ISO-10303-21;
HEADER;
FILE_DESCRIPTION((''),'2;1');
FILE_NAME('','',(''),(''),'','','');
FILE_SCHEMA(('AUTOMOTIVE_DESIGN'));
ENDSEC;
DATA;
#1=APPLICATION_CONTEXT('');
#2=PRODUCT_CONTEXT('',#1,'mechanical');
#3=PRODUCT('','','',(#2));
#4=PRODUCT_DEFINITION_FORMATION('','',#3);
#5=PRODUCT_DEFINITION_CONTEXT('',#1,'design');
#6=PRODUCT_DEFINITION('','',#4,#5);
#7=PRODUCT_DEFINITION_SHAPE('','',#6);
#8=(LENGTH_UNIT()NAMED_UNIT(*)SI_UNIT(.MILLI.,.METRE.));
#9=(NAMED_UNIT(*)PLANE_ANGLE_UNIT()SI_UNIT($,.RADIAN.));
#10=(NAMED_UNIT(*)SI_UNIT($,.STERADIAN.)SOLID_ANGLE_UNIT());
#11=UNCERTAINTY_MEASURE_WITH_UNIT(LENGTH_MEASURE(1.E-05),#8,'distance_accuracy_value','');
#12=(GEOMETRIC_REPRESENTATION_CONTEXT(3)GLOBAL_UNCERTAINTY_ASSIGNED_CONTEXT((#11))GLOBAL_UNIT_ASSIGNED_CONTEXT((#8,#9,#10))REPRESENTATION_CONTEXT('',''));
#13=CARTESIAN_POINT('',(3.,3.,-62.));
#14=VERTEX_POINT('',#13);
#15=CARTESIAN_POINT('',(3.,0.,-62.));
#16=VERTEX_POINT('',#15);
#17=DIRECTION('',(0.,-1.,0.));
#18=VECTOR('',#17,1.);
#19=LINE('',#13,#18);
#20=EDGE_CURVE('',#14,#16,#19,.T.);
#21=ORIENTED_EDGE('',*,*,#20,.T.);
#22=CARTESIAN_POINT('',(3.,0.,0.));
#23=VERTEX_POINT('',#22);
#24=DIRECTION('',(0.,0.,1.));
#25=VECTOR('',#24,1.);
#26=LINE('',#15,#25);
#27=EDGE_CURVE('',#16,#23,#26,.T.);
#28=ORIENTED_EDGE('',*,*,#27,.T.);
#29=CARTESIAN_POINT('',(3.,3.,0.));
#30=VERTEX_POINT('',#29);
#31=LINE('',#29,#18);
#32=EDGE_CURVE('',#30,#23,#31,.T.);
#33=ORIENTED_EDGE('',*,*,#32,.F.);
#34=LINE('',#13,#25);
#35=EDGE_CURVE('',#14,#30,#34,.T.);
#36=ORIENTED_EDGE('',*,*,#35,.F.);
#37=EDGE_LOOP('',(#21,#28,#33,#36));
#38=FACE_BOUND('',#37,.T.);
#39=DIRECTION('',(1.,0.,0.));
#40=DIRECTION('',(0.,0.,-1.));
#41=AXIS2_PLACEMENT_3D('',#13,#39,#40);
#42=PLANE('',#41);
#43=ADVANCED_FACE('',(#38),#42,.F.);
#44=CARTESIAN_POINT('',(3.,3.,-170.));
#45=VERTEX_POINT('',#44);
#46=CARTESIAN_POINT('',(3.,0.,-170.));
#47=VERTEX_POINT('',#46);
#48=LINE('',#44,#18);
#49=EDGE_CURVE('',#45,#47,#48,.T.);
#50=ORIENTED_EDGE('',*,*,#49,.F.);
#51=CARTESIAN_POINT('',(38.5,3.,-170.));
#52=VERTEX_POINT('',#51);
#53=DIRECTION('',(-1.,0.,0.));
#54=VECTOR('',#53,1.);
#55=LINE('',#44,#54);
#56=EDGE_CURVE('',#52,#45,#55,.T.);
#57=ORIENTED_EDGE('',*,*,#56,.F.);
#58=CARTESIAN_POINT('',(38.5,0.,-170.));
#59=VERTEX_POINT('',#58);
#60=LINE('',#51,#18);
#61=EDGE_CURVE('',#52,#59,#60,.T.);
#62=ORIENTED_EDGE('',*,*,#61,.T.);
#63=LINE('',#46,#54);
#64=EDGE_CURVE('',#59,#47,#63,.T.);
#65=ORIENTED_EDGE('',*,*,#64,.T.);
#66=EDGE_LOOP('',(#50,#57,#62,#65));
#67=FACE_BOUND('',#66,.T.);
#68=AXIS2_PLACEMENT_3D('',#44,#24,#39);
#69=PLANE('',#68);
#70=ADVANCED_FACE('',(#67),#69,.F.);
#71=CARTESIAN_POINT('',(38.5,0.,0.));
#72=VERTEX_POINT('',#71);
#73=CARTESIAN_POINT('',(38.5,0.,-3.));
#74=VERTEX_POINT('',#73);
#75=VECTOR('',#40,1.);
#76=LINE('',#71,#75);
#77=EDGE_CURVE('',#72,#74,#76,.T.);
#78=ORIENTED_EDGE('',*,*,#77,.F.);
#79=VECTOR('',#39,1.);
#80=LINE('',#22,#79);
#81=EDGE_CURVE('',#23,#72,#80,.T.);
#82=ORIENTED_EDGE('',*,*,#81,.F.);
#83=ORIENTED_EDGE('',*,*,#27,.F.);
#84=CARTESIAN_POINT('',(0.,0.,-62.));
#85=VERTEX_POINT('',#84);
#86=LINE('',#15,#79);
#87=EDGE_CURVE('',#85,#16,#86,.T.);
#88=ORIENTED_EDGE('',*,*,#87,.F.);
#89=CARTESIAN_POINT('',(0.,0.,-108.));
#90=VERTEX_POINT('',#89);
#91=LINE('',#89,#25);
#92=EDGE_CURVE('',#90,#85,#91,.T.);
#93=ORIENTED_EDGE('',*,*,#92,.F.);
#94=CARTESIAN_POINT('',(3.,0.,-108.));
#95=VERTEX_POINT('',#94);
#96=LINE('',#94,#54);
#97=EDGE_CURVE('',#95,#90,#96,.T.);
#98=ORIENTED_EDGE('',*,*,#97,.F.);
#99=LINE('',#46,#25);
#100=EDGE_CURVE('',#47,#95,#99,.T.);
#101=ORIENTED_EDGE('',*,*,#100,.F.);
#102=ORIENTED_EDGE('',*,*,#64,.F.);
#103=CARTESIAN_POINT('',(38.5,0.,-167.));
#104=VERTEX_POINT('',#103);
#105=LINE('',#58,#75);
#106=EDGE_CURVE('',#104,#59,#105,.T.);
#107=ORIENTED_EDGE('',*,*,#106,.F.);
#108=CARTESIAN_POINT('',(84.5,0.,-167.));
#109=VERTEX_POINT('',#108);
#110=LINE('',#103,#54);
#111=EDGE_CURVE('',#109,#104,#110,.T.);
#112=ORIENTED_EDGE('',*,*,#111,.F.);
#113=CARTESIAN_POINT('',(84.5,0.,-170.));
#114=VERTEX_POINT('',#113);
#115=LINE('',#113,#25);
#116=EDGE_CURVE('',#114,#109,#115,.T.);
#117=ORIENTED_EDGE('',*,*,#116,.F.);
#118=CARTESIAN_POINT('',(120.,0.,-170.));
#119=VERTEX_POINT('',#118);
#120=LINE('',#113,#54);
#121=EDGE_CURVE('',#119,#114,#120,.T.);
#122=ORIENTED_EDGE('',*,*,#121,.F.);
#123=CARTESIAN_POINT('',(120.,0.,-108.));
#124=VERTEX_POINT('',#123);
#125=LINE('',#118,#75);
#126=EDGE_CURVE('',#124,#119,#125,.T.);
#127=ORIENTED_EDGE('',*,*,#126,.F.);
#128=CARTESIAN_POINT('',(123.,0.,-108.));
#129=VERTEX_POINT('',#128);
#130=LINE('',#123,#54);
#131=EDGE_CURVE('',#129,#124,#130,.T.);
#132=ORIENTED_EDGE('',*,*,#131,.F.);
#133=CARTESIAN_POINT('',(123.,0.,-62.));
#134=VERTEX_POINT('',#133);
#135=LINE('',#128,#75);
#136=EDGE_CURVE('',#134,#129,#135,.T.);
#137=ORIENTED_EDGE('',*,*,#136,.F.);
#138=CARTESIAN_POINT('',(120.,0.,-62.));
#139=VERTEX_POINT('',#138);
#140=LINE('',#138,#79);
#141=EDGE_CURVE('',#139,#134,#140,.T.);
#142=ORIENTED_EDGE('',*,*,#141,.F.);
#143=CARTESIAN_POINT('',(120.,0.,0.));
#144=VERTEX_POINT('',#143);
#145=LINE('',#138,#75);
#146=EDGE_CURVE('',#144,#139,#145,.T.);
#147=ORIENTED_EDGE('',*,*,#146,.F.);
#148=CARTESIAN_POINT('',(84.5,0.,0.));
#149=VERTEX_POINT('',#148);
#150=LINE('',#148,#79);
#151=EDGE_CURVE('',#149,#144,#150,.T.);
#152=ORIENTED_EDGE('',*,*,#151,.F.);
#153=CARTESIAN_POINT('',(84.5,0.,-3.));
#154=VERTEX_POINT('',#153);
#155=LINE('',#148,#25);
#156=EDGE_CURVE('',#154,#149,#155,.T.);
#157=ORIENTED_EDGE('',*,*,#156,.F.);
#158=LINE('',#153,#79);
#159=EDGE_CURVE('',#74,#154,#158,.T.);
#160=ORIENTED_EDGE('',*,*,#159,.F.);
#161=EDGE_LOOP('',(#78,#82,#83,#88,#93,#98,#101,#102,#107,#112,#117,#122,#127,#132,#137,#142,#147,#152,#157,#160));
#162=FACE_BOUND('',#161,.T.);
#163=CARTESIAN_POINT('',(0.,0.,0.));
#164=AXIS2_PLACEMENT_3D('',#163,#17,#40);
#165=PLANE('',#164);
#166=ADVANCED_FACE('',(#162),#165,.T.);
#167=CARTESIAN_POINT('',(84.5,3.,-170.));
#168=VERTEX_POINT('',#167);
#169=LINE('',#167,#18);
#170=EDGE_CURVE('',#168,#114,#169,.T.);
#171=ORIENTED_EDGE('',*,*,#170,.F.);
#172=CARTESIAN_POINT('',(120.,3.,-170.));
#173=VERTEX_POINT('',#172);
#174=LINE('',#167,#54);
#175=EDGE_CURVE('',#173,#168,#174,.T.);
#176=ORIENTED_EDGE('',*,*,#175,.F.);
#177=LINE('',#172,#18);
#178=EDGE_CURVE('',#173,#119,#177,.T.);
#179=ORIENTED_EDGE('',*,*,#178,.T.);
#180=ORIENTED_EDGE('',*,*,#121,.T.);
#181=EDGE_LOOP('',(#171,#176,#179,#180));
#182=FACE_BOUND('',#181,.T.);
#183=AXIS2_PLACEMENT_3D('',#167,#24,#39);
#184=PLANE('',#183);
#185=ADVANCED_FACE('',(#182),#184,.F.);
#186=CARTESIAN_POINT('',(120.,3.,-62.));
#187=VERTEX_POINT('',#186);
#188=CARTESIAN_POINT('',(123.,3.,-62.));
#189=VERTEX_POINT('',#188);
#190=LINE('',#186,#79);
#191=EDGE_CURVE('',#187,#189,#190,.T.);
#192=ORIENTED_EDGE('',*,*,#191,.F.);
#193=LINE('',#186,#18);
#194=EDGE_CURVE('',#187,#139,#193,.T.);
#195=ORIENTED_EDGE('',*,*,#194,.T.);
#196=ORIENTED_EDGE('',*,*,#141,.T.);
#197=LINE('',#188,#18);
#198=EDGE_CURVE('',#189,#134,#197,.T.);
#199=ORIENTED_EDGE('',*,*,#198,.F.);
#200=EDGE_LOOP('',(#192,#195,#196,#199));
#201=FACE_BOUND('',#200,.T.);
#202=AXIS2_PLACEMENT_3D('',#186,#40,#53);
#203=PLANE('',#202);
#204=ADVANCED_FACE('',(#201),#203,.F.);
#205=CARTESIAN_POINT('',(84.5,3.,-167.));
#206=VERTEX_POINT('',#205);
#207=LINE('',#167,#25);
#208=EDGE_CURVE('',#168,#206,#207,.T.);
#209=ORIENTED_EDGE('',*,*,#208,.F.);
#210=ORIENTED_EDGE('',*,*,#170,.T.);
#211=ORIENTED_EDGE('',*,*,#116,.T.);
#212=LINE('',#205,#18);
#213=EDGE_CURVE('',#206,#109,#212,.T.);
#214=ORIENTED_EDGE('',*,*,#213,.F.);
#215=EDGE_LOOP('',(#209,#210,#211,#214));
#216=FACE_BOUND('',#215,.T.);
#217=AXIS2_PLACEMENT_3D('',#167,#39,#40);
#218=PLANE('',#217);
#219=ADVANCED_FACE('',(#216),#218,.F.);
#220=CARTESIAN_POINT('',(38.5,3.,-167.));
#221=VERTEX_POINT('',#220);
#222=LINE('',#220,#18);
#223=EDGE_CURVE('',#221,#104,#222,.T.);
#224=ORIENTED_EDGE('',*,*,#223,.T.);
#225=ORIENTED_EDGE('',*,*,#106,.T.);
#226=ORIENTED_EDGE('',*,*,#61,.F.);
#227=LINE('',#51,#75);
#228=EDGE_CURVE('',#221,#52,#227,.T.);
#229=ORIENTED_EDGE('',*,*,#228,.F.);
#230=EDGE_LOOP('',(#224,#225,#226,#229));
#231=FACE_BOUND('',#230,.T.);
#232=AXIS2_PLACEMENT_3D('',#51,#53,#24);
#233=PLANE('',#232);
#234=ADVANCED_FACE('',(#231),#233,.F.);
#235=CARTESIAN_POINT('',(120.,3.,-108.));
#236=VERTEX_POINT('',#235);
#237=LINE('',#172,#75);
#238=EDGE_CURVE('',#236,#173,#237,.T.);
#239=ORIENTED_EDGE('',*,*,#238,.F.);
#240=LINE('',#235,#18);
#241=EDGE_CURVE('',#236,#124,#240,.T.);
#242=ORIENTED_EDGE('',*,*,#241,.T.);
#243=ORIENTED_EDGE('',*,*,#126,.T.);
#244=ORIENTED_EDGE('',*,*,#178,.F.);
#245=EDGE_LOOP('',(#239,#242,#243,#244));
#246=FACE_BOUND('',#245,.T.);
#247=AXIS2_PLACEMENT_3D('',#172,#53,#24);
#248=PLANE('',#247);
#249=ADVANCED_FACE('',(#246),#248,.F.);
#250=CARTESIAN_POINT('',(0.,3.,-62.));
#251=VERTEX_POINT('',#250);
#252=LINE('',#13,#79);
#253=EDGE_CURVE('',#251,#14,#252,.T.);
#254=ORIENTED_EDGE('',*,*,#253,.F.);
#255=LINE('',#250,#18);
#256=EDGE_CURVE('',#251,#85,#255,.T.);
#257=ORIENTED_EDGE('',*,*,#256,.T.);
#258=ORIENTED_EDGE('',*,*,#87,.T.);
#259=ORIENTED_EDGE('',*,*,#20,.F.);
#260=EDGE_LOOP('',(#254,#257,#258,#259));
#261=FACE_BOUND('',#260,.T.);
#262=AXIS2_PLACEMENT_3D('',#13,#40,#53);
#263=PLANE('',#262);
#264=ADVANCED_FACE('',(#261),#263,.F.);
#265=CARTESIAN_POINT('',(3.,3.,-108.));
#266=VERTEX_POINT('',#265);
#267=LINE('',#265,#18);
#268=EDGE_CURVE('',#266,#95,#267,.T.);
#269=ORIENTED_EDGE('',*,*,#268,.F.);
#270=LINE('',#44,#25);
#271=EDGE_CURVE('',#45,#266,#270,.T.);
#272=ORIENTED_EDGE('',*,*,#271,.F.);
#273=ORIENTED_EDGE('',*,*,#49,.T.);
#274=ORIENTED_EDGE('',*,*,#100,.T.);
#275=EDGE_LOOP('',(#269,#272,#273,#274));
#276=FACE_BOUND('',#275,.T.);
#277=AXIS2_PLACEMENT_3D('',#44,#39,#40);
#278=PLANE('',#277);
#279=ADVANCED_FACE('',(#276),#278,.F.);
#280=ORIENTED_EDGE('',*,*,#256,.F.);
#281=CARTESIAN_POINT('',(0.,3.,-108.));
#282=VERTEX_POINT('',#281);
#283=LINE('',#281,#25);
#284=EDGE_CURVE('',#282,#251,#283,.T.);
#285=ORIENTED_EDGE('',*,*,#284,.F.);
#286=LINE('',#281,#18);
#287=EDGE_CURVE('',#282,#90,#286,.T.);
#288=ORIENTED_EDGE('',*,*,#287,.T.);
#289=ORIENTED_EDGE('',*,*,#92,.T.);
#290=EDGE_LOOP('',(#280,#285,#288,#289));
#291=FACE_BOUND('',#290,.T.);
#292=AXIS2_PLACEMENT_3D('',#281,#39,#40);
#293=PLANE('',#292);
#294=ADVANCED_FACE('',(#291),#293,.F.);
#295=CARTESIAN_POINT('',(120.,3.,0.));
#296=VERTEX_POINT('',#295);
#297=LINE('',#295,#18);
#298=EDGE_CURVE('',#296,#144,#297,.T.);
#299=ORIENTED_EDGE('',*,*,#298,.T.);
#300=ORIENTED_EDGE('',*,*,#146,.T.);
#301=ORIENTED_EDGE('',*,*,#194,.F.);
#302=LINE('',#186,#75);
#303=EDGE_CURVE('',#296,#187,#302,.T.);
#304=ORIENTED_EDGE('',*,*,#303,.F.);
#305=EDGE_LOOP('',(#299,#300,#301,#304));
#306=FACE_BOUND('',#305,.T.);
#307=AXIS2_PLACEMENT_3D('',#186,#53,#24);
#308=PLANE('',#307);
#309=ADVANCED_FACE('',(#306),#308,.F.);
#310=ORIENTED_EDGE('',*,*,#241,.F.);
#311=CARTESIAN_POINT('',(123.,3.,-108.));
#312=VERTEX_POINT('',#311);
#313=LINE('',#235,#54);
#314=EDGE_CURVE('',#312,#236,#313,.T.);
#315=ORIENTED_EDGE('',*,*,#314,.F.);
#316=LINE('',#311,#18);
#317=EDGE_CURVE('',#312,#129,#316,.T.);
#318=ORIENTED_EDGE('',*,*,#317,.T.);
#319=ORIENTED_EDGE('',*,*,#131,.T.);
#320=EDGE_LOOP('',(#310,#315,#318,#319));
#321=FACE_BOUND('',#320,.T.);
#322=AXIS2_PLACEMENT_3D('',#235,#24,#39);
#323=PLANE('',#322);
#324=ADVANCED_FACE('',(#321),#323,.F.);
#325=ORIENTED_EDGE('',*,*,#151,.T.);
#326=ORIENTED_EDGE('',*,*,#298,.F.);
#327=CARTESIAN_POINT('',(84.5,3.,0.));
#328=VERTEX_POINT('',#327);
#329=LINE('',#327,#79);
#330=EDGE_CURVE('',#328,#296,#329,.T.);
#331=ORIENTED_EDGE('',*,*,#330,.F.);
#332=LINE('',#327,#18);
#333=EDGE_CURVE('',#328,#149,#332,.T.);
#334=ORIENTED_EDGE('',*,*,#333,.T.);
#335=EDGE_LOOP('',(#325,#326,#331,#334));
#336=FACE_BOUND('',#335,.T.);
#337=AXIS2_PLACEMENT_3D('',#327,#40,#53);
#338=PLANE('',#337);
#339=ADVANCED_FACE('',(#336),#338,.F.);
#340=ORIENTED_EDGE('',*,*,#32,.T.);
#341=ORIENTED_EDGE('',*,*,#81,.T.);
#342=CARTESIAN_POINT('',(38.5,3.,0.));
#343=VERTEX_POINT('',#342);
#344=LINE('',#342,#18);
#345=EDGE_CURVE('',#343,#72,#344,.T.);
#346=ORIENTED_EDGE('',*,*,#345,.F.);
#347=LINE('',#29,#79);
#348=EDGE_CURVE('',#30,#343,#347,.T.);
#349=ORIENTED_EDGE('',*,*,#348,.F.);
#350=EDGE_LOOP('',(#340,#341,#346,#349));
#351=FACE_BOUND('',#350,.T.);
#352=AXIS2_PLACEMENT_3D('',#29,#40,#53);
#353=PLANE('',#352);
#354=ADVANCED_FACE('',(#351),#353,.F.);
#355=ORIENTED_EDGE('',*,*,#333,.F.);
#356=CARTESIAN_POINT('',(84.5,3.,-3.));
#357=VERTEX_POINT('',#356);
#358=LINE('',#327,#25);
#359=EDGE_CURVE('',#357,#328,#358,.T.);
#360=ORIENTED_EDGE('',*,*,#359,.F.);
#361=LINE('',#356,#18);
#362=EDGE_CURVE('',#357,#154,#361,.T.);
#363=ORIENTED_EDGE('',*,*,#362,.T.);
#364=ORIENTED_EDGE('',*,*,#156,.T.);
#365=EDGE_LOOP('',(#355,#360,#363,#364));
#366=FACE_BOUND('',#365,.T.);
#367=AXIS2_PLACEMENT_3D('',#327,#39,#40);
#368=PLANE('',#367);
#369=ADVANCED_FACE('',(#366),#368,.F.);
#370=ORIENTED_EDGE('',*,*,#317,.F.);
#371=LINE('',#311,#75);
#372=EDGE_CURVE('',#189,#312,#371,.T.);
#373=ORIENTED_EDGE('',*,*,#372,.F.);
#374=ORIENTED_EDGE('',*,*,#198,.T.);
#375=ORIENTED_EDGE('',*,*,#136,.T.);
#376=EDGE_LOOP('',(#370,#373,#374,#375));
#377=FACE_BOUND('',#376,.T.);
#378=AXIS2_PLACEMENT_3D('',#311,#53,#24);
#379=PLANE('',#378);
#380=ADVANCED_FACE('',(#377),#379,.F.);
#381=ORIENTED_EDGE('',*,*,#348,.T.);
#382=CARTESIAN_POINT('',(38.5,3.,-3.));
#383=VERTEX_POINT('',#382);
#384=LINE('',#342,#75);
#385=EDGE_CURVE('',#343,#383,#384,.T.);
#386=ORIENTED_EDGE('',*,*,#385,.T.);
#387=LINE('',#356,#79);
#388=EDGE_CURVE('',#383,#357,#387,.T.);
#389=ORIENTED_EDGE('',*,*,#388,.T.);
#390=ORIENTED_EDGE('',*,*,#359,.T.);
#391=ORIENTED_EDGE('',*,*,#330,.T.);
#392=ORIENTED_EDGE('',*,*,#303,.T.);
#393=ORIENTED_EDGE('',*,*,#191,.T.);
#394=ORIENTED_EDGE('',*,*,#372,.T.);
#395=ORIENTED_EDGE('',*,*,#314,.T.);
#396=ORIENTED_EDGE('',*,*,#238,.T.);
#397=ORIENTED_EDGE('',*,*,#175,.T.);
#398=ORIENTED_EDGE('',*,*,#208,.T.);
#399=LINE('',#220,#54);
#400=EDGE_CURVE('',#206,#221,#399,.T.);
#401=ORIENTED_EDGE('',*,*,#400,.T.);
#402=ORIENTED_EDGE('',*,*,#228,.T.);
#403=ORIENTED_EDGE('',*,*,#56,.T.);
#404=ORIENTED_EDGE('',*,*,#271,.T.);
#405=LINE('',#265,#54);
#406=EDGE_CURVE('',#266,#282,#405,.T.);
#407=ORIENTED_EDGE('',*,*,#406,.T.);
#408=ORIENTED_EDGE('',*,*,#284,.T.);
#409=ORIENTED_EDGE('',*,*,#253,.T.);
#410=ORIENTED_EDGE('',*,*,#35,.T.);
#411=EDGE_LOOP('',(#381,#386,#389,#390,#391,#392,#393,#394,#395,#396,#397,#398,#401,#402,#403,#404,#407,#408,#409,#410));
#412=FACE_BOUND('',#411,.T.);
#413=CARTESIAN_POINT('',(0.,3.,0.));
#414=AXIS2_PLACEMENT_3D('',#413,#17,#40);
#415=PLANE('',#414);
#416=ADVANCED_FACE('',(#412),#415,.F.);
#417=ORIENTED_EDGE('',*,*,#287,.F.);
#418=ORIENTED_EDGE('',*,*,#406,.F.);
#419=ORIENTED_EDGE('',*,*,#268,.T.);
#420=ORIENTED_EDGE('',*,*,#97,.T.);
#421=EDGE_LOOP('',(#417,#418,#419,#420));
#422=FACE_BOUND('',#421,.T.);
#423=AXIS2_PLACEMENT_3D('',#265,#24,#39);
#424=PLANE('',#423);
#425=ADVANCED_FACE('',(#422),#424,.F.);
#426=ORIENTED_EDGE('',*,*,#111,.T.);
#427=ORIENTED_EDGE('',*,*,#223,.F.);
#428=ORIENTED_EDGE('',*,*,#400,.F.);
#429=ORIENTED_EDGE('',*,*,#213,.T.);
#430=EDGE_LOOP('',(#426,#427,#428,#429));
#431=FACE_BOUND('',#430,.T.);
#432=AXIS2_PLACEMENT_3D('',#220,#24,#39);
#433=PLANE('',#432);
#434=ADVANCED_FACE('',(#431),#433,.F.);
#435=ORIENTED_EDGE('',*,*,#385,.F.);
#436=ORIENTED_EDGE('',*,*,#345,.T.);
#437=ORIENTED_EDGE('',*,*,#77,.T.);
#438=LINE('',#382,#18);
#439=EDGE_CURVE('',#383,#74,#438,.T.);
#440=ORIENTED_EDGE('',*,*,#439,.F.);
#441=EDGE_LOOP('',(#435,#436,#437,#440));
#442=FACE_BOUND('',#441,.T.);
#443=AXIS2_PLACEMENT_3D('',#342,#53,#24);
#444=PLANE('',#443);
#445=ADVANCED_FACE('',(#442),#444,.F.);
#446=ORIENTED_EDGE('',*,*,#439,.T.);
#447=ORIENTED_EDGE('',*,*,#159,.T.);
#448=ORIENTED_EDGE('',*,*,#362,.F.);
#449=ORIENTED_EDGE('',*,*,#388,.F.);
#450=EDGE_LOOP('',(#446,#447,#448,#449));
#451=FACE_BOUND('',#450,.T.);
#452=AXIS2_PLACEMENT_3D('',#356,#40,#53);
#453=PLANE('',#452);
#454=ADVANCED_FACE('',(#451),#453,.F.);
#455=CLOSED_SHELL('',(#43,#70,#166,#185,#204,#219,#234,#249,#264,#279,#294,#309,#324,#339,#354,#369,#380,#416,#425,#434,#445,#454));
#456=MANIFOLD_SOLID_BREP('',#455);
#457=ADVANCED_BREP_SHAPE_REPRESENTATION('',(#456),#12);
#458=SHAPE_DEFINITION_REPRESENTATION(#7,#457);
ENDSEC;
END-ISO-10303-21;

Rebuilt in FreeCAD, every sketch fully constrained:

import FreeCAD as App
import Part
import Sketcher
Q = App.Units.Quantity


def add_polygon(sketch, points):
    """Adds a closed chain of lines whose ends are joined by coincident constraints."""
    first, n = sketch.GeometryCount, len(points)
    for a, b in zip(points, points[1:] + points[:1]):
        sketch.addGeometry(Part.LineSegment(App.Vector(*a, 0), App.Vector(*b, 0)), False)
    for i in range(n):
        sketch.addConstraint(Sketcher.Constraint("Coincident", first + i, 2, first + (i + 1) % n, 1))

doc = App.newDocument("Part")
body = doc.addObject("PartDesign::Body", "Body")

# Sketch on XZ plane
sketch1 = doc.addObject("Sketcher::SketchObject", "Sketch")
body.addObject(sketch1)
sketch1.AttachmentSupport = (doc.XZ_Plane, [""])
sketch1.MapMode = "FlatFace"
add_polygon(sketch1, [(120, -170), (84.5, -170), (84.5, -167), (38.5, -167), (38.5, -170), (3, -170), (3, -108), (0, -108), (0, -62), (3, -62), (3, 0), (38.5, 0), (38.5, -3), (84.5, -3), (84.5, 0), (120, 0), (120, -62), (123, -62), (123, -108), (120, -108)])  # lines 0-19
sketch1.addConstraint([
    Sketcher.Constraint("Horizontal", 0),
    Sketcher.Constraint("Vertical", 1),
    Sketcher.Constraint("Horizontal", 2),
    Sketcher.Constraint("Vertical", 3),
    Sketcher.Constraint("Horizontal", 4),
    Sketcher.Constraint("Vertical", 5),
    Sketcher.Constraint("Horizontal", 6),
    Sketcher.Constraint("Vertical", 7),
    Sketcher.Constraint("Horizontal", 8),
    Sketcher.Constraint("Vertical", 9),
    Sketcher.Constraint("Horizontal", 10),
    Sketcher.Constraint("Vertical", 11),
    Sketcher.Constraint("Horizontal", 12),
    Sketcher.Constraint("Vertical", 13),
    Sketcher.Constraint("Horizontal", 14),
    Sketcher.Constraint("Vertical", 15),
    Sketcher.Constraint("Horizontal", 16),
    Sketcher.Constraint("Vertical", 17),
    Sketcher.Constraint("Horizontal", 18),
    Sketcher.Constraint("Vertical", 19),
    Sketcher.Constraint("PointOnObject", 6, 2, -2),
    Sketcher.Constraint("PointOnObject", 9, 2, -1),
    Sketcher.Constraint("PointOnObject", 13, 2, -1),
    Sketcher.Constraint("Horizontal", 0, 2, 3, 2),
    Sketcher.Constraint("Horizontal", 8, 2, 15, 2),
    Sketcher.Constraint("Horizontal", 6, 2, 17, 2),
    Sketcher.Constraint("Vertical", 5, 2, 8, 2),
    Sketcher.Constraint("Vertical", 3, 2, 10, 2),
    Sketcher.Constraint("Vertical", 1, 2, 12, 2),
    Sketcher.Constraint("Vertical", 15, 2, 18, 2),
    Sketcher.Constraint("Equal", 0, 4),
    Sketcher.Constraint("Equal", 8, 16),
    Sketcher.Constraint("Equal", 18, 1),
    Sketcher.Constraint("Equal", 12, 7),
    Sketcher.Constraint("Equal", 5, 9),
    Sketcher.Constraint("Equal", 3, 11),
    Sketcher.Constraint("DistanceX", 2, 2, 2, 1, Q("46 mm")),
    Sketcher.Constraint("DistanceX", 6, 2, 6, 1, Q("3 mm")),
    Sketcher.Constraint("DistanceY", 5, 1, 5, 2, Q("62 mm")),
    Sketcher.Constraint("DistanceX", 0, 2, 0, 1, Q("35.5 mm")),
])
pad1 = doc.addObject("PartDesign::Pad", "Pad")
body.addObject(pad1)
pad1.Profile = sketch1
pad1.Length = 3
pad1.Reversed = True

doc.recompute()
